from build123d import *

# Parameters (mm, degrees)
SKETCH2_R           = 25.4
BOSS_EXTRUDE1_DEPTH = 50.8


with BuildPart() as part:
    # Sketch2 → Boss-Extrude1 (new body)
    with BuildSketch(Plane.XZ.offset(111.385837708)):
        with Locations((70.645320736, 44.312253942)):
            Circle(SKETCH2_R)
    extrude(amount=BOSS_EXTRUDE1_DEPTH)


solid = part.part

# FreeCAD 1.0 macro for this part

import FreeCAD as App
import Part
import Sketcher

V = App.Vector
Q = App.Units.Quantity

doc = App.newDocument("Part")
body = doc.addObject("PartDesign::Body", "Body")

sketch1 = body.newObject("Sketcher::SketchObject", "Sketch")
sketch1.AttachmentSupport = (doc.getObject("XZ_Plane"), [""])
sketch1.MapMode = "FlatFace"
sketch1.AttachmentOffset = App.Placement(V(0, 0, 111.385838), App.Rotation())
sketch1.addGeometry(Part.Circle(V(71, 44, 0), V(0, 0, 1), 25), False)
sketch1.addConstraint([
    Sketcher.Constraint("Diameter", 0, Q("2 in")),
    Sketcher.Constraint("DistanceX", -1, 1, 0, 3, Q("70.645321 mm")),
    Sketcher.Constraint("DistanceY", -1, 1, 0, 3, Q("44.312254 mm")),
])
pad1 = body.newObject("PartDesign::Pad", "Pad")
pad1.Profile = sketch1
pad1.Length = Q("2 in")

doc.recompute()
